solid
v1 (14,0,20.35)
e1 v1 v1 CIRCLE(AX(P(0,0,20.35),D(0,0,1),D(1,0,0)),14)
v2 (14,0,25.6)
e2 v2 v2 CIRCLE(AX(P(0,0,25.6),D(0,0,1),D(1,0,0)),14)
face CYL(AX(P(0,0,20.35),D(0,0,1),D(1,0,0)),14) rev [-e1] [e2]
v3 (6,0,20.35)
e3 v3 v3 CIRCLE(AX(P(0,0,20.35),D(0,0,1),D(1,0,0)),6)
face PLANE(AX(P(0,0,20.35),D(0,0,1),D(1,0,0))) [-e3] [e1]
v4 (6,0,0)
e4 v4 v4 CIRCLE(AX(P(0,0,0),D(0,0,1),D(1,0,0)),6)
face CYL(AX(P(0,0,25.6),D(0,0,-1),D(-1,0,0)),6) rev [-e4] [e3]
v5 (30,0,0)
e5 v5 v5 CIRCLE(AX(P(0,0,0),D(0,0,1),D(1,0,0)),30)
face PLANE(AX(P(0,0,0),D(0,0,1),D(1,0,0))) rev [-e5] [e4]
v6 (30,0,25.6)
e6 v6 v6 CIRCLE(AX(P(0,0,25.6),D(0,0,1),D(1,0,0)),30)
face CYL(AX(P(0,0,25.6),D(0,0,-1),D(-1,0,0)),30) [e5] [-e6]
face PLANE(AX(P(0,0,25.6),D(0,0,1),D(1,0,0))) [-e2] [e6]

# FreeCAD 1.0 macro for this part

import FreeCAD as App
import Part
import Sketcher
Q = App.Units.Quantity

doc = App.newDocument("Part")
body = doc.addObject("PartDesign::Body", "Body")

sketch1 = body.newObject("Sketcher::SketchObject", "Sketch")
sketch1.AttachmentSupport = (doc.getObject("XY_Plane"), [""])
sketch1.MapMode = "FlatFace"
sketch1.addGeometry(Part.Circle(App.Vector(0, 0, 0), App.Vector(0, 0, 1), 30), False)
sketch1.addGeometry(Part.Circle(App.Vector(0, 0, 0), App.Vector(0, 0, 1), 6), False)
sketch1.addConstraint(Sketcher.Constraint("Coincident", 0, 3, -1, 1))
sketch1.addConstraint(Sketcher.Constraint("Coincident", 1, 3, -1, 1))
sketch1.addConstraint(Sketcher.Constraint("Diameter", 0, Q("60 mm")))
sketch1.addConstraint(Sketcher.Constraint("Diameter", 1, Q("12 mm")))
pad1 = body.newObject("PartDesign::Pad", "Pad")
pad1.Profile = sketch1
pad1.Length = 25.6

sketch2 = body.newObject("Sketcher::SketchObject", "Sketch001")
sketch2.AttachmentSupport = (doc.getObject("XY_Plane"), [""])
sketch2.MapMode = "FlatFace"
sketch2.AttachmentOffset = App.Placement(App.Vector(0, 0, 25.6), App.Rotation())
sketch2.addGeometry(Part.Circle(App.Vector(0, 0, 0), App.Vector(0, 0, 1), 14), False)
sketch2.addConstraint(Sketcher.Constraint("Coincident", 0, 3, -1, 1))
sketch2.addConstraint(Sketcher.Constraint("Diameter", 0, Q("28 mm")))
pocket1 = body.newObject("PartDesign::Pocket", "Pocket")
pocket1.Profile = sketch2
pocket1.Length = 5.25

doc.recompute()
